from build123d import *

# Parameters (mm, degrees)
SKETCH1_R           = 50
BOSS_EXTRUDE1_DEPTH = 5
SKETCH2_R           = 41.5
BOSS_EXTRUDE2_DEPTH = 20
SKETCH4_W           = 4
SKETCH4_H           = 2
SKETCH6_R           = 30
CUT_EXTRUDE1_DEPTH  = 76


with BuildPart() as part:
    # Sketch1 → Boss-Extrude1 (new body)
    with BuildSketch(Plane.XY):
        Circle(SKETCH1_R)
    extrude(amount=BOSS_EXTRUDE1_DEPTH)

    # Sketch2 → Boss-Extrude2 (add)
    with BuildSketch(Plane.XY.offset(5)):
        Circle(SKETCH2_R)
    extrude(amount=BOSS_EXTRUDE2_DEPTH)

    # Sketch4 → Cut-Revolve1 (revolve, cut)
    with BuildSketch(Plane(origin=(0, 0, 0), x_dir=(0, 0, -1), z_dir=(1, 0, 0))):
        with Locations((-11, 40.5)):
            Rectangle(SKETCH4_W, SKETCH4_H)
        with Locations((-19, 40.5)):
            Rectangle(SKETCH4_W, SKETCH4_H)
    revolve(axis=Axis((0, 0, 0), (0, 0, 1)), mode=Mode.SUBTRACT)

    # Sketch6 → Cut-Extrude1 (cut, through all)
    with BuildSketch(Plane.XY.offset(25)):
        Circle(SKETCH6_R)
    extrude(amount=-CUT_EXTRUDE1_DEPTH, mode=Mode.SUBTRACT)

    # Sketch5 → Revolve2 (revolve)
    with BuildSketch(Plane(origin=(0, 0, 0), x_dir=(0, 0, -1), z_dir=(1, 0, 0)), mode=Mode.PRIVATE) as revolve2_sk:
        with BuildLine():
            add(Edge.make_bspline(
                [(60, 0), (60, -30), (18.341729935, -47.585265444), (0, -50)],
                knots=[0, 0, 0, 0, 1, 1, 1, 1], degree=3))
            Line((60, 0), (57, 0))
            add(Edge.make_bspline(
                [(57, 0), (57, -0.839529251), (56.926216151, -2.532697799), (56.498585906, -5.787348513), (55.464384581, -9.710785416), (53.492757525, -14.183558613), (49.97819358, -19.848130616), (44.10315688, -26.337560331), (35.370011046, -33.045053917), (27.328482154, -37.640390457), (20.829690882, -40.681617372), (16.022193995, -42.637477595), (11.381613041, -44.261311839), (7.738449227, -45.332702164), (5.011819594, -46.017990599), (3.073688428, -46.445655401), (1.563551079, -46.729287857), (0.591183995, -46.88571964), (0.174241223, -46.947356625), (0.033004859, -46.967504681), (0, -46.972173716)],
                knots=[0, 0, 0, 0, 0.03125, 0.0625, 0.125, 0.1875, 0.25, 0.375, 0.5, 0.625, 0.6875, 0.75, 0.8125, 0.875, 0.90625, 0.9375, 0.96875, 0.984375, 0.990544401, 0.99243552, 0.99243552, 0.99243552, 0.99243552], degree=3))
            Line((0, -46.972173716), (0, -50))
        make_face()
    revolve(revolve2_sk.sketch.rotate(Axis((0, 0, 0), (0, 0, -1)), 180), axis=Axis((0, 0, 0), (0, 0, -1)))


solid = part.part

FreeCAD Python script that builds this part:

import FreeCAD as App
import Part
import Sketcher
Q = App.Units.Quantity

doc = App.newDocument("Part")
body = doc.addObject("PartDesign::Body", "Body")

# Sketch on XY plane
sketch1 = body.newObject("Sketcher::SketchObject", "Sketch")
sketch1.AttachmentSupport = (doc.getObject("XY_Plane"), [""])
sketch1.MapMode = "FlatFace"
sketch1.addGeometry(Part.Circle(App.Vector(0, 0, 0), App.Vector(0, 0, 1), 50), False)
sketch1.addConstraint([
    Sketcher.Constraint("Coincident", 0, 3, -1, 1),
    Sketcher.Constraint("Diameter", 0, Q("100 mm")),
])
pad1 = body.newObject("PartDesign::Pad", "Pad")
pad1.Profile = sketch1
pad1.Length = 5

# Sketch on XY plane
sketch2 = body.newObject("Sketcher::SketchObject", "Sketch001")
sketch2.AttachmentSupport = (doc.getObject("XY_Plane"), [""])
sketch2.MapMode = "FlatFace"
sketch2.AttachmentOffset = App.Placement(App.Vector(0, 0, 5), App.Rotation())
sketch2.addGeometry(Part.Circle(App.Vector(0, 0, 0), App.Vector(0, 0, 1), 42), False)
sketch2.addConstraint([
    Sketcher.Constraint("Coincident", 0, 3, -1, 1),
    Sketcher.Constraint("Diameter", 0, Q("83 mm")),
])
pad2 = body.newObject("PartDesign::Pad", "Pad001")
pad2.Profile = sketch2
pad2.Length = 20

# Sketch on YZ plane
sketch3 = body.newObject("Sketcher::SketchObject", "Sketch002")
sketch3.AttachmentSupport = (doc.getObject("YZ_Plane"), [""])
sketch3.MapMode = "FlatFace"
sketch3.addGeometry([
    Part.LineSegment(App.Vector(41.5, 13, 0), App.Vector(39.5, 13, 0)),  # 0
    Part.LineSegment(App.Vector(39.5, 13, 0), App.Vector(39.5, 9, 0)),  # 1
    Part.LineSegment(App.Vector(39.5, 9, 0), App.Vector(41.5, 9, 0)),  # 2
    Part.LineSegment(App.Vector(41.5, 9, 0), App.Vector(41.5, 13, 0)),  # 3
    Part.LineSegment(App.Vector(41.5, 21, 0), App.Vector(39.5, 21, 0)),  # 4
    Part.LineSegment(App.Vector(39.5, 21, 0), App.Vector(39.5, 17, 0)),  # 5
    Part.LineSegment(App.Vector(39.5, 17, 0), App.Vector(41.5, 17, 0)),  # 6
    Part.LineSegment(App.Vector(41.5, 17, 0), App.Vector(41.5, 21, 0)),  # 7
], False)
sketch3.addConstraint([
    Sketcher.Constraint("Coincident", 0, 2, 1, 1),
    Sketcher.Constraint("Coincident", 1, 2, 2, 1),
    Sketcher.Constraint("Coincident", 2, 2, 3, 1),
    Sketcher.Constraint("Coincident", 3, 2, 0, 1),
    Sketcher.Constraint("Coincident", 4, 2, 5, 1),
    Sketcher.Constraint("Coincident", 5, 2, 6, 1),
    Sketcher.Constraint("Coincident", 6, 2, 7, 1),
    Sketcher.Constraint("Coincident", 7, 2, 4, 1),
    Sketcher.Constraint("Horizontal", 0),
    Sketcher.Constraint("Vertical", 1),
    Sketcher.Constraint("Horizontal", 2),
    Sketcher.Constraint("Vertical", 3),
    Sketcher.Constraint("Horizontal", 4),
    Sketcher.Constraint("Vertical", 5),
    Sketcher.Constraint("Horizontal", 6),
    Sketcher.Constraint("Vertical", 7),
    Sketcher.Constraint("Vertical", 1, 2, 4, 2),
    Sketcher.Constraint("Vertical", 3, 2, 6, 2),
    Sketcher.Constraint("Equal", 3, 5),
    Sketcher.Constraint("DistanceX", 0, 2, 0, 1, Q("2 mm")),
    Sketcher.Constraint("DistanceY", 1, 2, 1, 1, Q("4 mm")),
    Sketcher.Constraint("DistanceY", -1, 1, 0, 2, Q("13 mm")),
    Sketcher.Constraint("DistanceY", -1, 1, 4, 2, Q("21 mm")),
    Sketcher.Constraint("DistanceX", -1, 1, 0, 2, Q("39.5 mm")),
])
groove = body.newObject("PartDesign::Groove", "Groove")
groove.Profile = sketch3
groove.ReferenceAxis = (sketch3, ["V_Axis"])
groove.Angle = 360

# Sketch on XY plane
sketch4 = body.newObject("Sketcher::SketchObject", "Sketch003")
sketch4.AttachmentSupport = (doc.getObject("XY_Plane"), [""])
sketch4.MapMode = "FlatFace"
sketch4.AttachmentOffset = App.Placement(App.Vector(0, 0, 25), App.Rotation())
sketch4.addGeometry(Part.Circle(App.Vector(0, 0, 0), App.Vector(0, 0, 1), 30), False)
sketch4.addConstraint([
    Sketcher.Constraint("Coincident", 0, 3, -1, 1),
    Sketcher.Constraint("Diameter", 0, Q("60 mm")),
])
pocket1 = body.newObject("PartDesign::Pocket", "Pocket")
pocket1.Profile = sketch4
pocket1.Type = "ThroughAll"

# Sketch on YZ plane
sketch5 = body.newObject("Sketcher::SketchObject", "Sketch004")
sketch5.AttachmentSupport = (doc.getObject("YZ_Plane"), [""])
sketch5.MapMode = "FlatFace"
sketch5.addGeometry([
    Part.BSplineCurve([App.Vector(0, -60, 0), App.Vector(-30, -60, 0), App.Vector(-47.585265, -18.34173, 0), App.Vector(-50, 0, 0)], [4, 4], [0, 1], False, 3, [1, 1, 1, 1], False),
    Part.LineSegment(App.Vector(0, -60, 0), App.Vector(0, -57, 0)),
    Part.BSplineCurve([App.Vector(0, -57, 0), App.Vector(-0.839529, -57, 0), App.Vector(-2.532698, -56.926216, 0), App.Vector(-5.787349, -56.498586, 0), App.Vector(-9.710785, -55.464385, 0), App.Vector(-14.183559, -53.492758, 0), App.Vector(-19.848131, -49.978194, 0), App.Vector(-26.33756, -44.103157, 0), App.Vector(-33.045054, -35.370011, 0), App.Vector(-37.64039, -27.328482, 0), App.Vector(-40.681617, -20.829691, 0), App.Vector(-42.637478, -16.022194, 0), App.Vector(-44.261312, -11.381613, 0), App.Vector(-45.332702, -7.738449, 0), App.Vector(-46.017991, -5.01182, 0), App.Vector(-46.445655, -3.073688, 0), App.Vector(-46.729288, -1.563551, 0), App.Vector(-46.88572, -0.591184, 0), App.Vector(-46.947357, -0.174241, 0), App.Vector(-46.967505, -0.033005, 0), App.Vector(-46.972174, 0, 0)], [4, 1, 1, 1, 1, 1, 1, 1, 1, 1, 1, 1, 1, 1, 1, 1, 1, 1, 4], [0, 0.03125, 0.0625, 0.125, 0.1875, 0.25, 0.375, 0.5, 0.625, 0.6875, 0.75, 0.8125, 0.875, 0.90625, 0.9375, 0.96875, 0.984375, 0.990544401, 0.99243552], False, 3, [1, 1, 1, 1, 1, 1, 1, 1, 1, 1, 1, 1, 1, 1, 1, 1, 1, 1, 1, 1, 1], False),
    Part.LineSegment(App.Vector(-46.972174, 0, 0), App.Vector(-50, 0, 0)),
], False)
sketch5.addConstraint([
    Sketcher.Constraint("Block", 0),
    Sketcher.Constraint("Block", 2),
    Sketcher.Constraint("Coincident", 0, 1, 1, 1),
    Sketcher.Constraint("Coincident", 1, 2, 2, 1),
    Sketcher.Constraint("Coincident", 2, 2, 3, 1),
    Sketcher.Constraint("Coincident", 3, 2, 0, 2),
])
revolution = body.newObject("PartDesign::Revolution", "Revolution")
revolution.Profile = sketch5
revolution.ReferenceAxis = (sketch5, ["V_Axis"])
revolution.Angle = 360

doc.recompute()
